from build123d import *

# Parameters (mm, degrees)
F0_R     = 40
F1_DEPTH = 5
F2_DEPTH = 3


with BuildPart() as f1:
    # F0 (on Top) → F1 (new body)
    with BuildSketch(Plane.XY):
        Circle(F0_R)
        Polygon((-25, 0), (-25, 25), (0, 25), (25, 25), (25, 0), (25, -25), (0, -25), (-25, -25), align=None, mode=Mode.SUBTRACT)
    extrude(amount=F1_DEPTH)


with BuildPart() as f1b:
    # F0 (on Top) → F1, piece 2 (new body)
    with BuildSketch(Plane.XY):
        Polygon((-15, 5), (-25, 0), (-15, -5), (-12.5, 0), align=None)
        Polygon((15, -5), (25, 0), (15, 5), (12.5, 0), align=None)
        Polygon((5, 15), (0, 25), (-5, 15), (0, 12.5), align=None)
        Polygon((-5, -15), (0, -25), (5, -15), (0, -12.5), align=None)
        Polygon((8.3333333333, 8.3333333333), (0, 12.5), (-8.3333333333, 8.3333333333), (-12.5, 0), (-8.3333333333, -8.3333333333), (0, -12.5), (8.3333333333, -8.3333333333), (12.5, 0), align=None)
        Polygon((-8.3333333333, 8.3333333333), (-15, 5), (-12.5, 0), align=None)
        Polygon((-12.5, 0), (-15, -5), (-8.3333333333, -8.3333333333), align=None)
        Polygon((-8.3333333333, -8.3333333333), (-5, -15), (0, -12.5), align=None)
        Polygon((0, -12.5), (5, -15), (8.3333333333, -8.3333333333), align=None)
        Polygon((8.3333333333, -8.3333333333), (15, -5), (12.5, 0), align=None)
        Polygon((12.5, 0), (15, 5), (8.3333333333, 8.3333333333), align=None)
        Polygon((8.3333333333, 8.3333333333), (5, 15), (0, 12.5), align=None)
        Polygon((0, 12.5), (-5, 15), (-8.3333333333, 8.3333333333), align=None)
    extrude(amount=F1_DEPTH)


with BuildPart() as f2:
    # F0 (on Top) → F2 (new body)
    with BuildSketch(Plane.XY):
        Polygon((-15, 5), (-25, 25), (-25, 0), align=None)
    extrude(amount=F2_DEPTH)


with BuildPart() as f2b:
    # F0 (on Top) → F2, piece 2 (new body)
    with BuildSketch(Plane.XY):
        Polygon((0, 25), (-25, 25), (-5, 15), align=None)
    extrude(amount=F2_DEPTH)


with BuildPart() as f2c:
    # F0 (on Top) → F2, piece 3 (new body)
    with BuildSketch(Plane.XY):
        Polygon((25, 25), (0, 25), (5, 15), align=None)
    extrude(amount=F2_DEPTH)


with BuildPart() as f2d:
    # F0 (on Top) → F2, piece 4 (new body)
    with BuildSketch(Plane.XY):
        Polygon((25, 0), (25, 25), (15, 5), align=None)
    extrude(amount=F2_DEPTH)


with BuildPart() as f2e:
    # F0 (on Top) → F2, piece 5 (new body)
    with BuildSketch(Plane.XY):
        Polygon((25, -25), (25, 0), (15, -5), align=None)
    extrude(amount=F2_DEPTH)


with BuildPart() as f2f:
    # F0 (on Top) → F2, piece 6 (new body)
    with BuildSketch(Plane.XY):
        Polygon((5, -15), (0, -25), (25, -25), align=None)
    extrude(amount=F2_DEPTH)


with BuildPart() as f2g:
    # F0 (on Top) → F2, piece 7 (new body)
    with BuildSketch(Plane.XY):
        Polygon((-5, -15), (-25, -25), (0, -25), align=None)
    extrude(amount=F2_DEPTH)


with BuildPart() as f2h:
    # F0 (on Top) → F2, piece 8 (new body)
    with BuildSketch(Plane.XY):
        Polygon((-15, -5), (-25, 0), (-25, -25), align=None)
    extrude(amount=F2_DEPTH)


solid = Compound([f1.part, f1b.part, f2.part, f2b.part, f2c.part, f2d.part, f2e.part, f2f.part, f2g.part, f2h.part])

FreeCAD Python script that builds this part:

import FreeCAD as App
import Part
import Sketcher
from FreeCAD import Vector

doc = App.newDocument("Part")
body = doc.addObject("PartDesign::Body", "Body")

sketch1 = body.newObject("Sketcher::SketchObject", "Sketch")
sketch1.AttachmentSupport = (doc.getObject("XY_Plane"), [""])
sketch1.MapMode = "FlatFace"
sketch1.addGeometry(Part.Circle(Vector(0, 0, 0), Vector(0, 0, 1), 40), False)
sketch1.addGeometry(Part.LineSegment(Vector(-25, -25, 0), Vector(-25, 25, 0)), False)
sketch1.addGeometry(Part.LineSegment(Vector(-25, 25, 0), Vector(25, 25, 0)), False)
sketch1.addGeometry(Part.LineSegment(Vector(25, 25, 0), Vector(25, -25, 0)), False)
sketch1.addGeometry(Part.LineSegment(Vector(25, -25, 0), Vector(-25, -25, 0)), False)
sketch1.addConstraint(Sketcher.Constraint("Coincident", 1, 2, 2, 1))
sketch1.addConstraint(Sketcher.Constraint("Coincident", 2, 2, 3, 1))
sketch1.addConstraint(Sketcher.Constraint("Coincident", 3, 2, 4, 1))
sketch1.addConstraint(Sketcher.Constraint("Coincident", 4, 2, 1, 1))
sketch1.addConstraint(Sketcher.Constraint("Vertical", 1))
sketch1.addConstraint(Sketcher.Constraint("Horizontal", 2))
sketch1.addConstraint(Sketcher.Constraint("Vertical", 3))
sketch1.addConstraint(Sketcher.Constraint("Horizontal", 4))
sketch1.addConstraint(Sketcher.Constraint("Coincident", 0, 3, -1, 1))
sketch1.addConstraint(Sketcher.Constraint("Symmetric", 1, 2, 3, 2, -1, 1))
sketch1.addConstraint(Sketcher.Constraint("Equal", 4, 1))
sketch1.addConstraint(Sketcher.Constraint("Diameter", 0, 80.0))
sketch1.addConstraint(Sketcher.Constraint("DistanceX", 2, 1, 2, 2, 50.0))
pad1 = body.newObject("PartDesign::Pad", "Pad")
pad1.Profile = sketch1
pad1.Length = 5
body2 = doc.addObject("PartDesign::Body", "Body001")

sketch2 = body2.newObject("Sketcher::SketchObject", "Sketch001")
sketch2.AttachmentSupport = (doc.getObject("XY_Plane001"), [""])
sketch2.MapMode = "FlatFace"
sketch2.addGeometry(Part.LineSegment(Vector(-15, 5, 0), Vector(-25, 0, 0)), False)
sketch2.addGeometry(Part.LineSegment(Vector(-25, 0, 0), Vector(-15, -5, 0)), False)
sketch2.addGeometry(Part.LineSegment(Vector(-15, -5, 0), Vector(-8, -8, 0)), False)
sketch2.addGeometry(Part.LineSegment(Vector(-8, -8, 0), Vector(-5, -15, 0)), False)
sketch2.addGeometry(Part.LineSegment(Vector(-5, -15, 0), Vector(0, -25, 0)), False)
sketch2.addGeometry(Part.LineSegment(Vector(0, -25, 0), Vector(5, -15, 0)), False)
sketch2.addGeometry(Part.LineSegment(Vector(5, -15, 0), Vector(8, -8, 0)), False)
sketch2.addGeometry(Part.LineSegment(Vector(8, -8, 0), Vector(15, -5, 0)), False)
sketch2.addGeometry(Part.LineSegment(Vector(15, -5, 0), Vector(25, 0, 0)), False)
sketch2.addGeometry(Part.LineSegment(Vector(25, 0, 0), Vector(15, 5, 0)), False)
sketch2.addGeometry(Part.LineSegment(Vector(15, 5, 0), Vector(8, 8, 0)), False)
sketch2.addGeometry(Part.LineSegment(Vector(8, 8, 0), Vector(5, 15, 0)), False)
sketch2.addGeometry(Part.LineSegment(Vector(5, 15, 0), Vector(0, 25, 0)), False)
sketch2.addGeometry(Part.LineSegment(Vector(0, 25, 0), Vector(-5, 15, 0)), False)
sketch2.addGeometry(Part.LineSegment(Vector(-5, 15, 0), Vector(-8, 8, 0)), False)
sketch2.addGeometry(Part.LineSegment(Vector(-8, 8, 0), Vector(-15, 5, 0)), False)
sketch2.addConstraint(Sketcher.Constraint("Coincident", 0, 2, 1, 1))
sketch2.addConstraint(Sketcher.Constraint("Coincident", 1, 2, 2, 1))
sketch2.addConstraint(Sketcher.Constraint("Coincident", 2, 2, 3, 1))
sketch2.addConstraint(Sketcher.Constraint("Coincident", 3, 2, 4, 1))
sketch2.addConstraint(Sketcher.Constraint("Coincident", 4, 2, 5, 1))
sketch2.addConstraint(Sketcher.Constraint("Coincident", 5, 2, 6, 1))
sketch2.addConstraint(Sketcher.Constraint("Coincident", 6, 2, 7, 1))
sketch2.addConstraint(Sketcher.Constraint("Coincident", 7, 2, 8, 1))
sketch2.addConstraint(Sketcher.Constraint("Coincident", 8, 2, 9, 1))
sketch2.addConstraint(Sketcher.Constraint("Coincident", 9, 2, 10, 1))
sketch2.addConstraint(Sketcher.Constraint("Coincident", 10, 2, 11, 1))
sketch2.addConstraint(Sketcher.Constraint("Coincident", 11, 2, 12, 1))
sketch2.addConstraint(Sketcher.Constraint("Coincident", 12, 2, 13, 1))
sketch2.addConstraint(Sketcher.Constraint("Coincident", 13, 2, 14, 1))
sketch2.addConstraint(Sketcher.Constraint("Coincident", 14, 2, 15, 1))
sketch2.addConstraint(Sketcher.Constraint("Coincident", 15, 2, 0, 1))
sketch2.addConstraint(Sketcher.Constraint("Symmetric", 0, 2, 8, 2, -1, 1))
sketch2.addConstraint(Sketcher.Constraint("Symmetric", 1, 2, 9, 2, -1, 1))
sketch2.addConstraint(Sketcher.Constraint("Symmetric", 2, 2, 10, 2, -1, 1))
sketch2.addConstraint(Sketcher.Constraint("Symmetric", 3, 2, 11, 2, -1, 1))
sketch2.addConstraint(Sketcher.Constraint("Symmetric", 4, 2, 12, 2, -1, 1))
sketch2.addConstraint(Sketcher.Constraint("Symmetric", 5, 2, 13, 2, -1, 1))
sketch2.addConstraint(Sketcher.Constraint("Symmetric", 6, 2, 14, 2, -1, 1))
sketch2.addConstraint(Sketcher.Constraint("Symmetric", 7, 2, 15, 2, -1, 1))
sketch2.addConstraint(Sketcher.Constraint("Symmetric", 3, 2, 5, 2, -2))
sketch2.addConstraint(Sketcher.Constraint("Symmetric", 2, 2, 6, 2, -2))
sketch2.addConstraint(Sketcher.Constraint("Symmetric", 1, 2, 7, 2, -2))
sketch2.addConstraint(Sketcher.Constraint("PointOnObject", 0, 2, -1))
sketch2.addConstraint(Sketcher.Constraint("PointOnObject", 4, 2, -2))
sketch2.addConstraint(Sketcher.Constraint("Parallel", 1, 2))
sketch2.addConstraint(Sketcher.Constraint("Perpendicular", 0, 3))
sketch2.addConstraint(Sketcher.Constraint("Parallel", 3, 4))
sketch2.addConstraint(Sketcher.Constraint("Equal", 2, 3))
sketch2.addConstraint(Sketcher.Constraint("Equal", 1, 4))
sketch2.addConstraint(Sketcher.Constraint("DistanceX", 0, 2, -1, 1, 25.0))
sketch2.addConstraint(Sketcher.Constraint("DistanceX", 1, 2, -1, 1, 15.0))
sketch2.addConstraint(Sketcher.Constraint("DistanceY", 1, 2, -1, 1, 5.0))
pad2 = body2.newObject("PartDesign::Pad", "Pad001")
pad2.Profile = sketch2
pad2.Length = 5
body3 = doc.addObject("PartDesign::Body", "Body002")

sketch3 = body3.newObject("Sketcher::SketchObject", "Sketch002")
sketch3.AttachmentSupport = (doc.getObject("XY_Plane002"), [""])
sketch3.MapMode = "FlatFace"
sketch3.addGeometry(Part.LineSegment(Vector(-15, 5, 0), Vector(-25, 25, 0)), False)
sketch3.addGeometry(Part.LineSegment(Vector(-25, 25, 0), Vector(-25, 0, 0)), False)
sketch3.addGeometry(Part.LineSegment(Vector(-25, 0, 0), Vector(-15, 5, 0)), False)
sketch3.addConstraint(Sketcher.Constraint("Coincident", 0, 2, 1, 1))
sketch3.addConstraint(Sketcher.Constraint("Coincident", 1, 2, 2, 1))
sketch3.addConstraint(Sketcher.Constraint("Coincident", 2, 2, 0, 1))
sketch3.addConstraint(Sketcher.Constraint("Vertical", 1))
sketch3.addConstraint(Sketcher.Constraint("PointOnObject", 1, 2, -1))
sketch3.addConstraint(Sketcher.Constraint("Perpendicular", 0, 2))
sketch3.addConstraint(Sketcher.Constraint("DistanceY", 1, 2, 1, 1, 25.0))
sketch3.addConstraint(Sketcher.Constraint("DistanceX", 0, 2, -1, 1, 25.0))
sketch3.addConstraint(Sketcher.Constraint("DistanceX", 2, 2, -1, 1, 15.0))
pad3 = body3.newObject("PartDesign::Pad", "Pad002")
pad3.Profile = sketch3
pad3.Length = 3
body4 = doc.addObject("PartDesign::Body", "Body003")

sketch4 = body4.newObject("Sketcher::SketchObject", "Sketch003")
sketch4.AttachmentSupport = (doc.getObject("XY_Plane003"), [""])
sketch4.MapMode = "FlatFace"
sketch4.addGeometry(Part.LineSegment(Vector(0, 25, 0), Vector(-25, 25, 0)), False)
sketch4.addGeometry(Part.LineSegment(Vector(-25, 25, 0), Vector(-5, 15, 0)), False)
sketch4.addGeometry(Part.LineSegment(Vector(-5, 15, 0), Vector(0, 25, 0)), False)
sketch4.addConstraint(Sketcher.Constraint("Coincident", 0, 2, 1, 1))
sketch4.addConstraint(Sketcher.Constraint("Coincident", 1, 2, 2, 1))
sketch4.addConstraint(Sketcher.Constraint("Coincident", 2, 2, 0, 1))
sketch4.addConstraint(Sketcher.Constraint("Horizontal", 0))
sketch4.addConstraint(Sketcher.Constraint("PointOnObject", 2, 2, -2))
sketch4.addConstraint(Sketcher.Constraint("Perpendicular", 1, 2))
sketch4.addConstraint(Sketcher.Constraint("DistanceX", 0, 2, 0, 1, 25.0))
sketch4.addConstraint(Sketcher.Constraint("DistanceY", -1, 1, 0, 2, 25.0))
sketch4.addConstraint(Sketcher.Constraint("DistanceX", 1, 2, -1, 1, 5.0))
pad4 = body4.newObject("PartDesign::Pad", "Pad003")
pad4.Profile = sketch4
pad4.Length = 3
body5 = doc.addObject("PartDesign::Body", "Body004")

sketch5 = body5.newObject("Sketcher::SketchObject", "Sketch004")
sketch5.AttachmentSupport = (doc.getObject("XY_Plane004"), [""])
sketch5.MapMode = "FlatFace"
sketch5.addGeometry(Part.LineSegment(Vector(25, 25, 0), Vector(0, 25, 0)), False)
sketch5.addGeometry(Part.LineSegment(Vector(0, 25, 0), Vector(5, 15, 0)), False)
sketch5.addGeometry(Part.LineSegment(Vector(5, 15, 0), Vector(25, 25, 0)), False)
sketch5.addConstraint(Sketcher.Constraint("Coincident", 0, 2, 1, 1))
sketch5.addConstraint(Sketcher.Constraint("Coincident", 1, 2, 2, 1))
sketch5.addConstraint(Sketcher.Constraint("Coincident", 2, 2, 0, 1))
sketch5.addConstraint(Sketcher.Constraint("Horizontal", 0))
sketch5.addConstraint(Sketcher.Constraint("PointOnObject", 0, 2, -2))
sketch5.addConstraint(Sketcher.Constraint("Perpendicular", 1, 2))
sketch5.addConstraint(Sketcher.Constraint("DistanceX", 0, 2, 0, 1, 25.0))
sketch5.addConstraint(Sketcher.Constraint("DistanceY", -1, 1, 0, 2, 25.0))
sketch5.addConstraint(Sketcher.Constraint("DistanceX", -1, 1, 1, 2, 5.0))
pad5 = body5.newObject("PartDesign::Pad", "Pad004")
pad5.Profile = sketch5
pad5.Length = 3
body6 = doc.addObject("PartDesign::Body", "Body005")

sketch6 = body6.newObject("Sketcher::SketchObject", "Sketch005")
sketch6.AttachmentSupport = (doc.getObject("XY_Plane005"), [""])
sketch6.MapMode = "FlatFace"
sketch6.addGeometry(Part.LineSegment(Vector(25, 0, 0), Vector(25, 25, 0)), False)
sketch6.addGeometry(Part.LineSegment(Vector(25, 25, 0), Vector(15, 5, 0)), False)
sketch6.addGeometry(Part.LineSegment(Vector(15, 5, 0), Vector(25, 0, 0)), False)
sketch6.addConstraint(Sketcher.Constraint("Coincident", 0, 2, 1, 1))
sketch6.addConstraint(Sketcher.Constraint("Coincident", 1, 2, 2, 1))
sketch6.addConstraint(Sketcher.Constraint("Coincident", 2, 2, 0, 1))
sketch6.addConstraint(Sketcher.Constraint("Vertical", 0))
sketch6.addConstraint(Sketcher.Constraint("PointOnObject", 2, 2, -1))
sketch6.addConstraint(Sketcher.Constraint("Perpendicular", 1, 2))
sketch6.addConstraint(Sketcher.Constraint("DistanceY", 0, 1, 0, 2, 25.0))
sketch6.addConstraint(Sketcher.Constraint("DistanceX", -1, 1, 0, 2, 25.0))
sketch6.addConstraint(Sketcher.Constraint("DistanceX", -1, 1, 1, 2, 15.0))
pad6 = body6.newObject("PartDesign::Pad", "Pad005")
pad6.Profile = sketch6
pad6.Length = 3
body7 = doc.addObject("PartDesign::Body", "Body006")

sketch7 = body7.newObject("Sketcher::SketchObject", "Sketch006")
sketch7.AttachmentSupport = (doc.getObject("XY_Plane006"), [""])
sketch7.MapMode = "FlatFace"
sketch7.addGeometry(Part.LineSegment(Vector(25, -25, 0), Vector(25, 0, 0)), False)
sketch7.addGeometry(Part.LineSegment(Vector(25, 0, 0), Vector(15, -5, 0)), False)
sketch7.addGeometry(Part.LineSegment(Vector(15, -5, 0), Vector(25, -25, 0)), False)
sketch7.addConstraint(Sketcher.Constraint("Coincident", 0, 2, 1, 1))
sketch7.addConstraint(Sketcher.Constraint("Coincident", 1, 2, 2, 1))
sketch7.addConstraint(Sketcher.Constraint("Coincident", 2, 2, 0, 1))
sketch7.addConstraint(Sketcher.Constraint("Vertical", 0))
sketch7.addConstraint(Sketcher.Constraint("PointOnObject", 0, 2, -1))
sketch7.addConstraint(Sketcher.Constraint("Perpendicular", 1, 2))
sketch7.addConstraint(Sketcher.Constraint("DistanceY", 0, 1, 0, 2, 25.0))
sketch7.addConstraint(Sketcher.Constraint("DistanceX", -1, 1, 0, 2, 25.0))
sketch7.addConstraint(Sketcher.Constraint("DistanceX", -1, 1, 1, 2, 15.0))
pad7 = body7.newObject("PartDesign::Pad", "Pad006")
pad7.Profile = sketch7
pad7.Length = 3
body8 = doc.addObject("PartDesign::Body", "Body007")

sketch8 = body8.newObject("Sketcher::SketchObject", "Sketch007")
sketch8.AttachmentSupport = (doc.getObject("XY_Plane007"), [""])
sketch8.MapMode = "FlatFace"
sketch8.addGeometry(Part.LineSegment(Vector(5, -15, 0), Vector(0, -25, 0)), False)
sketch8.addGeometry(Part.LineSegment(Vector(0, -25, 0), Vector(25, -25, 0)), False)
sketch8.addGeometry(Part.LineSegment(Vector(25, -25, 0), Vector(5, -15, 0)), False)
sketch8.addConstraint(Sketcher.Constraint("Coincident", 0, 2, 1, 1))
sketch8.addConstraint(Sketcher.Constraint("Coincident", 1, 2, 2, 1))
sketch8.addConstraint(Sketcher.Constraint("Coincident", 2, 2, 0, 1))
sketch8.addConstraint(Sketcher.Constraint("Horizontal", 1))
sketch8.addConstraint(Sketcher.Constraint("PointOnObject", 0, 2, -2))
sketch8.addConstraint(Sketcher.Constraint("Perpendicular", 0, 2))
sketch8.addConstraint(Sketcher.Constraint("DistanceX", 1, 1, 1, 2, 25.0))
sketch8.addConstraint(Sketcher.Constraint("DistanceY", 0, 2, -1, 1, 25.0))
sketch8.addConstraint(Sketcher.Constraint("DistanceX", -1, 1, 2, 2, 5.0))
pad8 = body8.newObject("PartDesign::Pad", "Pad007")
pad8.Profile = sketch8
pad8.Length = 3
body9 = doc.addObject("PartDesign::Body", "Body008")

sketch9 = body9.newObject("Sketcher::SketchObject", "Sketch008")
sketch9.AttachmentSupport = (doc.getObject("XY_Plane008"), [""])
sketch9.MapMode = "FlatFace"
sketch9.addGeometry(Part.LineSegment(Vector(-5, -15, 0), Vector(-25, -25, 0)), False)
sketch9.addGeometry(Part.LineSegment(Vector(-25, -25, 0), Vector(0, -25, 0)), False)
sketch9.addGeometry(Part.LineSegment(Vector(0, -25, 0), Vector(-5, -15, 0)), False)
sketch9.addConstraint(Sketcher.Constraint("Coincident", 0, 2, 1, 1))
sketch9.addConstraint(Sketcher.Constraint("Coincident", 1, 2, 2, 1))
sketch9.addConstraint(Sketcher.Constraint("Coincident", 2, 2, 0, 1))
sketch9.addConstraint(Sketcher.Constraint("Horizontal", 1))
sketch9.addConstraint(Sketcher.Constraint("PointOnObject", 1, 2, -2))
sketch9.addConstraint(Sketcher.Constraint("Perpendicular", 0, 2))
sketch9.addConstraint(Sketcher.Constraint("DistanceX", 1, 1, 1, 2, 25.0))
sketch9.addConstraint(Sketcher.Constraint("DistanceY", 0, 2, -1, 1, 25.0))
sketch9.addConstraint(Sketcher.Constraint("DistanceX", 2, 2, -1, 1, 5.0))
pad9 = body9.newObject("PartDesign::Pad", "Pad008")
pad9.Profile = sketch9
pad9.Length = 3
body10 = doc.addObject("PartDesign::Body", "Body009")

sketch10 = body10.newObject("Sketcher::SketchObject", "Sketch009")
sketch10.AttachmentSupport = (doc.getObject("XY_Plane009"), [""])
sketch10.MapMode = "FlatFace"
sketch10.addGeometry(Part.LineSegment(Vector(-15, -5, 0), Vector(-25, 0, 0)), False)
sketch10.addGeometry(Part.LineSegment(Vector(-25, 0, 0), Vector(-25, -25, 0)), False)
sketch10.addGeometry(Part.LineSegment(Vector(-25, -25, 0), Vector(-15, -5, 0)), False)
sketch10.addConstraint(Sketcher.Constraint("Coincident", 0, 2, 1, 1))
sketch10.addConstraint(Sketcher.Constraint("Coincident", 1, 2, 2, 1))
sketch10.addConstraint(Sketcher.Constraint("Coincident", 2, 2, 0, 1))
sketch10.addConstraint(Sketcher.Constraint("Vertical", 1))
sketch10.addConstraint(Sketcher.Constraint("PointOnObject", 0, 2, -1))
sketch10.addConstraint(Sketcher.Constraint("Perpendicular", 0, 2))
sketch10.addConstraint(Sketcher.Constraint("DistanceY", 1, 2, 1, 1, 25.0))
sketch10.addConstraint(Sketcher.Constraint("DistanceX", 0, 2, -1, 1, 25.0))
sketch10.addConstraint(Sketcher.Constraint("DistanceX", 2, 2, -1, 1, 15.0))
pad10 = body10.newObject("PartDesign::Pad", "Pad009")
pad10.Profile = sketch10
pad10.Length = 3

doc.recompute()
